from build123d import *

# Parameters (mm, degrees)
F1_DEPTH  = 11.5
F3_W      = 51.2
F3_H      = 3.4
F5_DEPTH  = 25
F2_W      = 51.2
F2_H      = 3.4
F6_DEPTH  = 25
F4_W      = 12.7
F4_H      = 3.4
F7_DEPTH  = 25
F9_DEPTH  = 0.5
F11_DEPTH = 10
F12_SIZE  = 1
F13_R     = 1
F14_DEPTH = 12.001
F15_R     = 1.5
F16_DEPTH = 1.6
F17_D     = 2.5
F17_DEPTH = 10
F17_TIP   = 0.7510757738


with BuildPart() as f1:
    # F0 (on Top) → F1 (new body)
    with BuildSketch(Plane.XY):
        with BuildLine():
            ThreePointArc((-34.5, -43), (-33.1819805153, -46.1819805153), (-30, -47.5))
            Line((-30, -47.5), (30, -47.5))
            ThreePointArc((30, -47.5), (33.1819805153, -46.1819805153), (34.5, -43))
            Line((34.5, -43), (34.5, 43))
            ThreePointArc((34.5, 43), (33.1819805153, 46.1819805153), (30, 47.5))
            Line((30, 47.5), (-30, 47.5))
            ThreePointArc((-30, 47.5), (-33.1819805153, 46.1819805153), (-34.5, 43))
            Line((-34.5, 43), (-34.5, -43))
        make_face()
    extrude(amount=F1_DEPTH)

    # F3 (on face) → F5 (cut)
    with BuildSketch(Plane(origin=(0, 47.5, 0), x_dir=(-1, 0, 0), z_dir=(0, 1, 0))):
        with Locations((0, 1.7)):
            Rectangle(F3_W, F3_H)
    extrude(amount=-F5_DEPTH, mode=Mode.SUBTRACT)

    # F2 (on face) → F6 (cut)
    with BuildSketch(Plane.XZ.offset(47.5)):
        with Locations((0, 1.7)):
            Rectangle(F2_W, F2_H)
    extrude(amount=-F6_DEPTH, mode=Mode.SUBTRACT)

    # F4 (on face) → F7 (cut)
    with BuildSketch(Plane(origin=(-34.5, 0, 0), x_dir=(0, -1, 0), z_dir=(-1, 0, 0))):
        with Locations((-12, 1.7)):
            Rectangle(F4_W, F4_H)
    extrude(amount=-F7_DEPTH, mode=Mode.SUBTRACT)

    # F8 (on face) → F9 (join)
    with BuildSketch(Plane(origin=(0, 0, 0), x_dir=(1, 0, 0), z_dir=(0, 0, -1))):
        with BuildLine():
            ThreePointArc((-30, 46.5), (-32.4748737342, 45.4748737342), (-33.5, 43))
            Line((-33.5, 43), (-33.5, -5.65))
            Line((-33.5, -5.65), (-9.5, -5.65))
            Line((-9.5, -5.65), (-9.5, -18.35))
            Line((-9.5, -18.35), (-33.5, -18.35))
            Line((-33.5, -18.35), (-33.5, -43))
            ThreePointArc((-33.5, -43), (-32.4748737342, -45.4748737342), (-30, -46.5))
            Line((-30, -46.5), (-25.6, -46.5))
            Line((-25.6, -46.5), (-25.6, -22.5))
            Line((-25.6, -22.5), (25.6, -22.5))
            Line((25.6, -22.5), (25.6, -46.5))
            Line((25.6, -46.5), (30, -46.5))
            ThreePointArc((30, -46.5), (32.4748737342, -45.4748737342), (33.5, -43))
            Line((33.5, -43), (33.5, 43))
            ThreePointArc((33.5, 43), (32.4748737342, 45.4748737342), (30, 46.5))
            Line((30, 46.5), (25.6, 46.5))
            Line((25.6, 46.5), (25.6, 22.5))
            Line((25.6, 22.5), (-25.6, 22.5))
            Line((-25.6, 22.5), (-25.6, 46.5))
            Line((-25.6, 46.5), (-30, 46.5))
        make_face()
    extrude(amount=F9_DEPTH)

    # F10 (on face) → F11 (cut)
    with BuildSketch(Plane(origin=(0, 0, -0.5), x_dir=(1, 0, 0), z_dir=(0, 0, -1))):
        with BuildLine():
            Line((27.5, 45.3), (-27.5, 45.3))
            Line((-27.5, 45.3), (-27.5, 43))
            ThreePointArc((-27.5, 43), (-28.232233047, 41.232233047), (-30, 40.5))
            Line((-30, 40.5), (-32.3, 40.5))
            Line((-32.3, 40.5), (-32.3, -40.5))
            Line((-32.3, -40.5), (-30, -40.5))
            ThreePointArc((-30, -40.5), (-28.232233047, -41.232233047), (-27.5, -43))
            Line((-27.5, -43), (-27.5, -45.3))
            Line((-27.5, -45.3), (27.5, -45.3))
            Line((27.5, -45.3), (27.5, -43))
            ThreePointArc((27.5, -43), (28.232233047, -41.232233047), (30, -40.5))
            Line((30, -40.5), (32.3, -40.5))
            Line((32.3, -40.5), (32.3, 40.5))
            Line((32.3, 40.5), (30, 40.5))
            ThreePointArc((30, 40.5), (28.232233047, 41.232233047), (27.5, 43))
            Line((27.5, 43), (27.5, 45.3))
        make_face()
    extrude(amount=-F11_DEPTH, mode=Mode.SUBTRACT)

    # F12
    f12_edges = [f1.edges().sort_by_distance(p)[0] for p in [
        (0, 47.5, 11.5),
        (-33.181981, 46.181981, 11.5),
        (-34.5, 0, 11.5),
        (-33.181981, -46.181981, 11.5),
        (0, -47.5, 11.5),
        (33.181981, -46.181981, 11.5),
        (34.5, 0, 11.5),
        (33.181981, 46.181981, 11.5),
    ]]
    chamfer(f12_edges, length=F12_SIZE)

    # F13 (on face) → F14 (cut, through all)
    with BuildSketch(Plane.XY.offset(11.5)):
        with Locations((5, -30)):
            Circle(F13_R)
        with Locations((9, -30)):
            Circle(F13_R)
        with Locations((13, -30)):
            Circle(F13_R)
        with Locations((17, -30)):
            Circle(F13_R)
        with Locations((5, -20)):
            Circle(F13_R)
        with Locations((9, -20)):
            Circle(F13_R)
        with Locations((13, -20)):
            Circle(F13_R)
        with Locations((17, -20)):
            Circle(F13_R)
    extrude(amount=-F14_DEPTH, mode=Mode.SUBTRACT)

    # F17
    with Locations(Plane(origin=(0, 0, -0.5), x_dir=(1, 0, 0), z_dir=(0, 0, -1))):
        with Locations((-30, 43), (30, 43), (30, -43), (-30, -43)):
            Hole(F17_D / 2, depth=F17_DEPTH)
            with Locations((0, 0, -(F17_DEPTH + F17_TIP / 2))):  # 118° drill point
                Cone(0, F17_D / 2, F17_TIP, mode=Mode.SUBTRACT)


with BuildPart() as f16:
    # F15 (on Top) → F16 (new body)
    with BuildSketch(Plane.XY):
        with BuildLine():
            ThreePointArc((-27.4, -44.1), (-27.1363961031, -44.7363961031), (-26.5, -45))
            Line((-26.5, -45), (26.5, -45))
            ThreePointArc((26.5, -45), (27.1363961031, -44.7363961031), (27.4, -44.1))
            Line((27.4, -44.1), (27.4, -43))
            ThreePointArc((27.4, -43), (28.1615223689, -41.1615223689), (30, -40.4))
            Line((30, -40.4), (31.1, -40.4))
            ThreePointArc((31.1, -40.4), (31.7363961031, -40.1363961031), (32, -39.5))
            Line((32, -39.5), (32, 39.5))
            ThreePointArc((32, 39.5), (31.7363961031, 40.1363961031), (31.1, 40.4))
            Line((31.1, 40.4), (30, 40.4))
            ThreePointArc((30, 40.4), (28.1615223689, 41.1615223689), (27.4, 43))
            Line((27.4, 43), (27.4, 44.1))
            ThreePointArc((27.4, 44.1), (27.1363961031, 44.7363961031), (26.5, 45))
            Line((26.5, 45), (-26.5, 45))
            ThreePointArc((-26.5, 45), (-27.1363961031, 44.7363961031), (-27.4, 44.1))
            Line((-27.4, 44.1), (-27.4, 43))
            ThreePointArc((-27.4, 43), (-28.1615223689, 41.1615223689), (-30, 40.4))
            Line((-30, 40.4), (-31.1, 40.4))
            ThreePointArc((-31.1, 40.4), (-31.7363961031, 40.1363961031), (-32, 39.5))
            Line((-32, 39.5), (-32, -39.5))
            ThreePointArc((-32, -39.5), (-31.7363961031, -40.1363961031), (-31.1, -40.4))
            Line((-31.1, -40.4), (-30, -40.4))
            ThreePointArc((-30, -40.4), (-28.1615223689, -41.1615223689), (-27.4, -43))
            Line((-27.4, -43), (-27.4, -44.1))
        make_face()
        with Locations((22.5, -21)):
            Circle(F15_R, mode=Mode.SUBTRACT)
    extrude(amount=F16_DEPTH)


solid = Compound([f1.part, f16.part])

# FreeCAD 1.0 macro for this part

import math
import FreeCAD as App
import Part
import Sketcher


def edges_at(feature, points):
    """Names of the edges that pass closest to the given points."""
    edges = feature.Shape.Edges
    near = lambda p: min(range(len(edges)), key=lambda i: edges[i].distToShape(Part.Vertex(*p))[0])
    return sorted({f"Edge{near(p) + 1}" for p in points})

doc = App.newDocument("Part")
body = doc.addObject("PartDesign::Body", "Body")

# Sketch on XY plane
sketch1 = doc.addObject("Sketcher::SketchObject", "Sketch")
body.addObject(sketch1)
sketch1.AttachmentSupport = (doc.XY_Plane, [""])
sketch1.MapMode = "FlatFace"
sketch1.addGeometry(Part.ArcOfCircle(Part.Circle(App.Vector(-30, -43, 0), App.Vector(0, 0, 1), 4.5), math.radians(180), math.radians(270)), False)
sketch1.addGeometry(Part.LineSegment(App.Vector(-30, -47.5, 0), App.Vector(30, -47.5, 0)), False)
sketch1.addGeometry(Part.ArcOfCircle(Part.Circle(App.Vector(30, -43, 0), App.Vector(0, 0, 1), 4.5), math.radians(-90), math.radians(0)), False)
sketch1.addGeometry(Part.LineSegment(App.Vector(34.5, -43, 0), App.Vector(34.5, 43, 0)), False)
sketch1.addGeometry(Part.ArcOfCircle(Part.Circle(App.Vector(30, 43, 0), App.Vector(0, 0, 1), 4.5), math.radians(0), math.radians(90)), False)
sketch1.addGeometry(Part.LineSegment(App.Vector(30, 47.5, 0), App.Vector(-30, 47.5, 0)), False)
sketch1.addGeometry(Part.ArcOfCircle(Part.Circle(App.Vector(-30, 43, 0), App.Vector(0, 0, 1), 4.5), math.radians(90), math.radians(180)), False)
sketch1.addGeometry(Part.LineSegment(App.Vector(-34.5, 43, 0), App.Vector(-34.5, -43, 0)), False)
sketch1.addConstraint(Sketcher.Constraint("Tangent", 0, 2, 1, 1))
sketch1.addConstraint(Sketcher.Constraint("Tangent", 1, 2, 2, 1))
sketch1.addConstraint(Sketcher.Constraint("Tangent", 2, 2, 3, 1))
sketch1.addConstraint(Sketcher.Constraint("Tangent", 3, 2, 4, 1))
sketch1.addConstraint(Sketcher.Constraint("Tangent", 4, 2, 5, 1))
sketch1.addConstraint(Sketcher.Constraint("Tangent", 5, 2, 6, 1))
sketch1.addConstraint(Sketcher.Constraint("Tangent", 6, 2, 7, 1))
sketch1.addConstraint(Sketcher.Constraint("Tangent", 7, 2, 0, 1))
sketch1.addConstraint(Sketcher.Constraint("Horizontal", 1))
sketch1.addConstraint(Sketcher.Constraint("Vertical", 3))
sketch1.addConstraint(Sketcher.Constraint("Horizontal", 5))
sketch1.addConstraint(Sketcher.Constraint("Vertical", 7))
sketch1.addConstraint(Sketcher.Constraint("Equal", 0, 2))
sketch1.addConstraint(Sketcher.Constraint("Equal", 2, 4))
sketch1.addConstraint(Sketcher.Constraint("Equal", 4, 6))
sketch1.addConstraint(Sketcher.Constraint("Symmetric", 0, 3, 4, 3, -1, 1))
sketch1.addConstraint(Sketcher.Constraint("Radius", 0, 4.5))
sketch1.addConstraint(Sketcher.Constraint("DistanceX", 1, 1, 1, 2, 60.0))
sketch1.addConstraint(Sketcher.Constraint("DistanceY", 3, 1, 3, 2, 86.0))
pad1 = doc.addObject("PartDesign::Pad", "Pad")
body.addObject(pad1)
pad1.Profile = sketch1
pad1.Length = 11.5

# Sketch on XZ plane
sketch2 = doc.addObject("Sketcher::SketchObject", "Sketch001")
body.addObject(sketch2)
sketch2.AttachmentSupport = (doc.XZ_Plane, [""])
sketch2.MapMode = "FlatFace"
sketch2.AttachmentOffset = App.Placement(App.Vector(0, 0, -47.5), App.Rotation())
sketch2.addGeometry(Part.LineSegment(App.Vector(25.6, 3.4, 0), App.Vector(25.6, 0, 0)), False)
sketch2.addGeometry(Part.LineSegment(App.Vector(25.6, 0, 0), App.Vector(-25.6, 0, 0)), False)
sketch2.addGeometry(Part.LineSegment(App.Vector(-25.6, 0, 0), App.Vector(-25.6, 3.4, 0)), False)
sketch2.addGeometry(Part.LineSegment(App.Vector(-25.6, 3.4, 0), App.Vector(25.6, 3.4, 0)), False)
sketch2.addConstraint(Sketcher.Constraint("Coincident", 0, 2, 1, 1))
sketch2.addConstraint(Sketcher.Constraint("Coincident", 1, 2, 2, 1))
sketch2.addConstraint(Sketcher.Constraint("Coincident", 2, 2, 3, 1))
sketch2.addConstraint(Sketcher.Constraint("Coincident", 3, 2, 0, 1))
sketch2.addConstraint(Sketcher.Constraint("Vertical", 0))
sketch2.addConstraint(Sketcher.Constraint("Horizontal", 1))
sketch2.addConstraint(Sketcher.Constraint("Vertical", 2))
sketch2.addConstraint(Sketcher.Constraint("Horizontal", 3))
sketch2.addConstraint(Sketcher.Constraint("Symmetric", 0, 2, 1, 2, -1, 1))
sketch2.addConstraint(Sketcher.Constraint("DistanceX", 1, 2, 1, 1, 51.2))
sketch2.addConstraint(Sketcher.Constraint("DistanceY", 0, 2, 0, 1, 3.4))
pocket1 = doc.addObject("PartDesign::Pocket", "Pocket")
body.addObject(pocket1)
pocket1.Profile = sketch2
pocket1.Length = 25
pocket1.Reversed = True

# Sketch on XZ plane
sketch3 = doc.addObject("Sketcher::SketchObject", "Sketch002")
body.addObject(sketch3)
sketch3.AttachmentSupport = (doc.XZ_Plane, [""])
sketch3.MapMode = "FlatFace"
sketch3.AttachmentOffset = App.Placement(App.Vector(0, 0, 47.5), App.Rotation())
sketch3.addGeometry(Part.LineSegment(App.Vector(-25.6, 3.4, 0), App.Vector(-25.6, 0, 0)), False)
sketch3.addGeometry(Part.LineSegment(App.Vector(-25.6, 0, 0), App.Vector(25.6, 0, 0)), False)
sketch3.addGeometry(Part.LineSegment(App.Vector(25.6, 0, 0), App.Vector(25.6, 3.4, 0)), False)
sketch3.addGeometry(Part.LineSegment(App.Vector(25.6, 3.4, 0), App.Vector(-25.6, 3.4, 0)), False)
sketch3.addConstraint(Sketcher.Constraint("Coincident", 0, 2, 1, 1))
sketch3.addConstraint(Sketcher.Constraint("Coincident", 1, 2, 2, 1))
sketch3.addConstraint(Sketcher.Constraint("Coincident", 2, 2, 3, 1))
sketch3.addConstraint(Sketcher.Constraint("Coincident", 3, 2, 0, 1))
sketch3.addConstraint(Sketcher.Constraint("Vertical", 0))
sketch3.addConstraint(Sketcher.Constraint("Horizontal", 1))
sketch3.addConstraint(Sketcher.Constraint("Vertical", 2))
sketch3.addConstraint(Sketcher.Constraint("Horizontal", 3))
sketch3.addConstraint(Sketcher.Constraint("Symmetric", 0, 2, 1, 2, -1, 1))
sketch3.addConstraint(Sketcher.Constraint("DistanceX", 1, 1, 1, 2, 51.2))
sketch3.addConstraint(Sketcher.Constraint("DistanceY", 0, 2, 0, 1, 3.4))
pocket2 = doc.addObject("PartDesign::Pocket", "Pocket001")
body.addObject(pocket2)
pocket2.Profile = sketch3
pocket2.Length = 25

# Sketch on YZ plane
sketch4 = doc.addObject("Sketcher::SketchObject", "Sketch003")
body.addObject(sketch4)
sketch4.AttachmentSupport = (doc.YZ_Plane, [""])
sketch4.MapMode = "FlatFace"
sketch4.AttachmentOffset = App.Placement(App.Vector(0, 0, -34.5), App.Rotation())
sketch4.addGeometry(Part.LineSegment(App.Vector(18.4, 3.4, 0), App.Vector(18.4, 0, 0)), False)
sketch4.addGeometry(Part.LineSegment(App.Vector(18.4, 0, 0), App.Vector(5.7, 0, 0)), False)
sketch4.addGeometry(Part.LineSegment(App.Vector(5.7, 0, 0), App.Vector(5.7, 3.4, 0)), False)
sketch4.addGeometry(Part.LineSegment(App.Vector(5.7, 3.4, 0), App.Vector(18.4, 3.4, 0)), False)
sketch4.addConstraint(Sketcher.Constraint("Coincident", 0, 2, 1, 1))
sketch4.addConstraint(Sketcher.Constraint("Coincident", 1, 2, 2, 1))
sketch4.addConstraint(Sketcher.Constraint("Coincident", 2, 2, 3, 1))
sketch4.addConstraint(Sketcher.Constraint("Coincident", 3, 2, 0, 1))
sketch4.addConstraint(Sketcher.Constraint("Vertical", 0))
sketch4.addConstraint(Sketcher.Constraint("Horizontal", 1))
sketch4.addConstraint(Sketcher.Constraint("Vertical", 2))
sketch4.addConstraint(Sketcher.Constraint("Horizontal", 3))
sketch4.addConstraint(Sketcher.Constraint("PointOnObject", 0, 2, -1))
sketch4.addConstraint(Sketcher.Constraint("DistanceX", 1, 2, 1, 1, 12.7))
sketch4.addConstraint(Sketcher.Constraint("DistanceY", 0, 2, 0, 1, 3.4))
sketch4.addConstraint(Sketcher.Constraint("DistanceX", -1, 1, 0, 2, 18.35))
pocket3 = doc.addObject("PartDesign::Pocket", "Pocket002")
body.addObject(pocket3)
pocket3.Profile = sketch4
pocket3.Length = 25
pocket3.Reversed = True

# Sketch on XY plane
sketch5 = doc.addObject("Sketcher::SketchObject", "Sketch004")
body.addObject(sketch5)
sketch5.AttachmentSupport = (doc.XY_Plane, [""])
sketch5.MapMode = "FlatFace"
sketch5.addGeometry(Part.ArcOfCircle(Part.Circle(App.Vector(-30, -43, 0), App.Vector(0, 0, 1), 3.5), math.radians(180), math.radians(270)), False)
sketch5.addGeometry(Part.LineSegment(App.Vector(-33.5, -43, 0), App.Vector(-33.5, 5.7, 0)), False)
sketch5.addGeometry(Part.LineSegment(App.Vector(-33.5, 5.7, 0), App.Vector(-9.5, 5.7, 0)), False)
sketch5.addGeometry(Part.LineSegment(App.Vector(-9.5, 5.7, 0), App.Vector(-9.5, 18.4, 0)), False)
sketch5.addGeometry(Part.LineSegment(App.Vector(-9.5, 18.4, 0), App.Vector(-33.5, 18.4, 0)), False)
sketch5.addGeometry(Part.LineSegment(App.Vector(-33.5, 18.4, 0), App.Vector(-33.5, 43, 0)), False)
sketch5.addGeometry(Part.ArcOfCircle(Part.Circle(App.Vector(-30, 43, 0), App.Vector(0, 0, 1), 3.5), math.radians(90), math.radians(180)), False)
sketch5.addGeometry(Part.LineSegment(App.Vector(-30, 46.5, 0), App.Vector(-25.6, 46.5, 0)), False)
sketch5.addGeometry(Part.LineSegment(App.Vector(-25.6, 46.5, 0), App.Vector(-25.6, 22.5, 0)), False)
sketch5.addGeometry(Part.LineSegment(App.Vector(-25.6, 22.5, 0), App.Vector(25.6, 22.5, 0)), False)
sketch5.addGeometry(Part.LineSegment(App.Vector(25.6, 22.5, 0), App.Vector(25.6, 46.5, 0)), False)
sketch5.addGeometry(Part.LineSegment(App.Vector(25.6, 46.5, 0), App.Vector(30, 46.5, 0)), False)
sketch5.addGeometry(Part.ArcOfCircle(Part.Circle(App.Vector(30, 43, 0), App.Vector(0, 0, 1), 3.5), math.radians(0), math.radians(90)), False)
sketch5.addGeometry(Part.LineSegment(App.Vector(33.5, 43, 0), App.Vector(33.5, -43, 0)), False)
sketch5.addGeometry(Part.ArcOfCircle(Part.Circle(App.Vector(30, -43, 0), App.Vector(0, 0, 1), 3.5), math.radians(-90), math.radians(0)), False)
sketch5.addGeometry(Part.LineSegment(App.Vector(30, -46.5, 0), App.Vector(25.6, -46.5, 0)), False)
sketch5.addGeometry(Part.LineSegment(App.Vector(25.6, -46.5, 0), App.Vector(25.6, -22.5, 0)), False)
sketch5.addGeometry(Part.LineSegment(App.Vector(25.6, -22.5, 0), App.Vector(-25.6, -22.5, 0)), False)
sketch5.addGeometry(Part.LineSegment(App.Vector(-25.6, -22.5, 0), App.Vector(-25.6, -46.5, 0)), False)
sketch5.addGeometry(Part.LineSegment(App.Vector(-25.6, -46.5, 0), App.Vector(-30, -46.5, 0)), False)
sketch5.addConstraint(Sketcher.Constraint("Tangent", 0, 1, 1, 1))
sketch5.addConstraint(Sketcher.Constraint("Coincident", 1, 2, 2, 1))
sketch5.addConstraint(Sketcher.Constraint("Coincident", 2, 2, 3, 1))
sketch5.addConstraint(Sketcher.Constraint("Coincident", 3, 2, 4, 1))
sketch5.addConstraint(Sketcher.Constraint("Coincident", 4, 2, 5, 1))
sketch5.addConstraint(Sketcher.Constraint("Tangent", 5, 2, 6, 2))
sketch5.addConstraint(Sketcher.Constraint("Tangent", 6, 1, 7, 1))
sketch5.addConstraint(Sketcher.Constraint("Coincident", 7, 2, 8, 1))
sketch5.addConstraint(Sketcher.Constraint("Coincident", 8, 2, 9, 1))
sketch5.addConstraint(Sketcher.Constraint("Coincident", 9, 2, 10, 1))
sketch5.addConstraint(Sketcher.Constraint("Coincident", 10, 2, 11, 1))
sketch5.addConstraint(Sketcher.Constraint("Tangent", 11, 2, 12, 2))
sketch5.addConstraint(Sketcher.Constraint("Tangent", 12, 1, 13, 1))
sketch5.addConstraint(Sketcher.Constraint("Tangent", 13, 2, 14, 2))
sketch5.addConstraint(Sketcher.Constraint("Tangent", 14, 1, 15, 1))
sketch5.addConstraint(Sketcher.Constraint("Coincident", 15, 2, 16, 1))
sketch5.addConstraint(Sketcher.Constraint("Coincident", 16, 2, 17, 1))
sketch5.addConstraint(Sketcher.Constraint("Coincident", 17, 2, 18, 1))
sketch5.addConstraint(Sketcher.Constraint("Coincident", 18, 2, 19, 1))
sketch5.addConstraint(Sketcher.Constraint("Tangent", 19, 2, 0, 2))
sketch5.addConstraint(Sketcher.Constraint("Vertical", 1))
sketch5.addConstraint(Sketcher.Constraint("Horizontal", 2))
sketch5.addConstraint(Sketcher.Constraint("Vertical", 3))
sketch5.addConstraint(Sketcher.Constraint("Horizontal", 4))
sketch5.addConstraint(Sketcher.Constraint("Vertical", 5))
sketch5.addConstraint(Sketcher.Constraint("Horizontal", 7))
sketch5.addConstraint(Sketcher.Constraint("Vertical", 8))
sketch5.addConstraint(Sketcher.Constraint("Horizontal", 9))
sketch5.addConstraint(Sketcher.Constraint("Vertical", 10))
sketch5.addConstraint(Sketcher.Constraint("Horizontal", 11))
sketch5.addConstraint(Sketcher.Constraint("Vertical", 13))
sketch5.addConstraint(Sketcher.Constraint("Horizontal", 15))
sketch5.addConstraint(Sketcher.Constraint("Vertical", 16))
sketch5.addConstraint(Sketcher.Constraint("Horizontal", 17))
sketch5.addConstraint(Sketcher.Constraint("Vertical", 18))
sketch5.addConstraint(Sketcher.Constraint("Horizontal", 19))
sketch5.addConstraint(Sketcher.Constraint("Equal", 0, 6))
sketch5.addConstraint(Sketcher.Constraint("Equal", 6, 12))
sketch5.addConstraint(Sketcher.Constraint("Equal", 12, 14))
sketch5.addConstraint(Sketcher.Constraint("Symmetric", 0, 3, 12, 3, -1, 1))
sketch5.addConstraint(Sketcher.Constraint("Symmetric", 6, 3, 14, 3, -1, 1))
sketch5.addConstraint(Sketcher.Constraint("Symmetric", 8, 2, 16, 2, -1, 1))
sketch5.addConstraint(Sketcher.Constraint("Symmetric", 7, 2, 10, 2, -2))
sketch5.addConstraint(Sketcher.Constraint("Vertical", 8, 2, 17, 2))
sketch5.addConstraint(Sketcher.Constraint("Equal", 4, 8))
sketch5.addConstraint(Sketcher.Constraint("Radius", 0, 3.5))
sketch5.addConstraint(Sketcher.Constraint("DistanceX", 2, 1, 2, 2, 24.0))
sketch5.addConstraint(Sketcher.Constraint("DistanceY", 13, 2, 13, 1, 86.0))
sketch5.addConstraint(Sketcher.Constraint("DistanceX", 7, 1, 7, 2, 4.4))
sketch5.addConstraint(Sketcher.Constraint("DistanceX", 9, 1, 9, 2, 51.2))
sketch5.addConstraint(Sketcher.Constraint("DistanceY", 3, 1, 3, 2, 12.7))
sketch5.addConstraint(Sketcher.Constraint("DistanceY", 1, 1, 1, 2, 48.65))
pad2 = doc.addObject("PartDesign::Pad", "Pad001")
body.addObject(pad2)
pad2.Profile = sketch5
pad2.Length = 0.5
pad2.Reversed = True

# Sketch on XY plane
sketch6 = doc.addObject("Sketcher::SketchObject", "Sketch005")
body.addObject(sketch6)
sketch6.AttachmentSupport = (doc.XY_Plane, [""])
sketch6.MapMode = "FlatFace"
sketch6.AttachmentOffset = App.Placement(App.Vector(0, 0, -0.5), App.Rotation())
sketch6.addGeometry(Part.LineSegment(App.Vector(27.5, -45.3, 0), App.Vector(-27.5, -45.3, 0)), False)
sketch6.addGeometry(Part.LineSegment(App.Vector(-27.5, -45.3, 0), App.Vector(-27.5, -43, 0)), False)
sketch6.addGeometry(Part.ArcOfCircle(Part.Circle(App.Vector(-30, -43, 0), App.Vector(0, 0, 1), 2.5), math.radians(0), math.radians(90)), False)
sketch6.addGeometry(Part.LineSegment(App.Vector(-30, -40.5, 0), App.Vector(-32.3, -40.5, 0)), False)
sketch6.addGeometry(Part.LineSegment(App.Vector(-32.3, -40.5, 0), App.Vector(-32.3, 40.5, 0)), False)
sketch6.addGeometry(Part.LineSegment(App.Vector(-32.3, 40.5, 0), App.Vector(-30, 40.5, 0)), False)
sketch6.addGeometry(Part.ArcOfCircle(Part.Circle(App.Vector(-30, 43, 0), App.Vector(0, 0, 1), 2.5), math.radians(-90), math.radians(0)), False)
sketch6.addGeometry(Part.LineSegment(App.Vector(-27.5, 43, 0), App.Vector(-27.5, 45.3, 0)), False)
sketch6.addGeometry(Part.LineSegment(App.Vector(-27.5, 45.3, 0), App.Vector(27.5, 45.3, 0)), False)
sketch6.addGeometry(Part.LineSegment(App.Vector(27.5, 45.3, 0), App.Vector(27.5, 43, 0)), False)
sketch6.addGeometry(Part.ArcOfCircle(Part.Circle(App.Vector(30, 43, 0), App.Vector(0, 0, 1), 2.5), math.radians(180), math.radians(270)), False)
sketch6.addGeometry(Part.LineSegment(App.Vector(30, 40.5, 0), App.Vector(32.3, 40.5, 0)), False)
sketch6.addGeometry(Part.LineSegment(App.Vector(32.3, 40.5, 0), App.Vector(32.3, -40.5, 0)), False)
sketch6.addGeometry(Part.LineSegment(App.Vector(32.3, -40.5, 0), App.Vector(30, -40.5, 0)), False)
sketch6.addGeometry(Part.ArcOfCircle(Part.Circle(App.Vector(30, -43, 0), App.Vector(0, 0, 1), 2.5), math.radians(90), math.radians(180)), False)
sketch6.addGeometry(Part.LineSegment(App.Vector(27.5, -43, 0), App.Vector(27.5, -45.3, 0)), False)
sketch6.addConstraint(Sketcher.Constraint("Coincident", 0, 2, 1, 1))
sketch6.addConstraint(Sketcher.Constraint("Tangent", 1, 2, 2, 1))
sketch6.addConstraint(Sketcher.Constraint("Tangent", 2, 2, 3, 1))
sketch6.addConstraint(Sketcher.Constraint("Coincident", 3, 2, 4, 1))
sketch6.addConstraint(Sketcher.Constraint("Coincident", 4, 2, 5, 1))
sketch6.addConstraint(Sketcher.Constraint("Tangent", 5, 2, 6, 1))
sketch6.addConstraint(Sketcher.Constraint("Tangent", 6, 2, 7, 1))
sketch6.addConstraint(Sketcher.Constraint("Coincident", 7, 2, 8, 1))
sketch6.addConstraint(Sketcher.Constraint("Coincident", 8, 2, 9, 1))
sketch6.addConstraint(Sketcher.Constraint("Tangent", 9, 2, 10, 1))
sketch6.addConstraint(Sketcher.Constraint("Tangent", 10, 2, 11, 1))
sketch6.addConstraint(Sketcher.Constraint("Coincident", 11, 2, 12, 1))
sketch6.addConstraint(Sketcher.Constraint("Coincident", 12, 2, 13, 1))
sketch6.addConstraint(Sketcher.Constraint("Tangent", 13, 2, 14, 1))
sketch6.addConstraint(Sketcher.Constraint("Tangent", 14, 2, 15, 1))
sketch6.addConstraint(Sketcher.Constraint("Coincident", 15, 2, 0, 1))
sketch6.addConstraint(Sketcher.Constraint("Horizontal", 0))
sketch6.addConstraint(Sketcher.Constraint("Vertical", 1))
sketch6.addConstraint(Sketcher.Constraint("Horizontal", 3))
sketch6.addConstraint(Sketcher.Constraint("Vertical", 4))
sketch6.addConstraint(Sketcher.Constraint("Horizontal", 5))
sketch6.addConstraint(Sketcher.Constraint("Vertical", 7))
sketch6.addConstraint(Sketcher.Constraint("Horizontal", 8))
sketch6.addConstraint(Sketcher.Constraint("Vertical", 9))
sketch6.addConstraint(Sketcher.Constraint("Horizontal", 11))
sketch6.addConstraint(Sketcher.Constraint("Vertical", 12))
sketch6.addConstraint(Sketcher.Constraint("Horizontal", 13))
sketch6.addConstraint(Sketcher.Constraint("Vertical", 15))
sketch6.addConstraint(Sketcher.Constraint("Equal", 2, 6))
sketch6.addConstraint(Sketcher.Constraint("Equal", 6, 10))
sketch6.addConstraint(Sketcher.Constraint("Equal", 10, 14))
sketch6.addConstraint(Sketcher.Constraint("Symmetric", 2, 3, 10, 3, -1, 1))
sketch6.addConstraint(Sketcher.Constraint("Symmetric", 6, 3, 14, 3, -1, 1))
sketch6.addConstraint(Sketcher.Constraint("Symmetric", 6, 3, 10, 3, -2))
sketch6.addConstraint(Sketcher.Constraint("Equal", 5, 11))
sketch6.addConstraint(Sketcher.Constraint("Equal", 13, 1))
sketch6.addConstraint(Sketcher.Constraint("Equal", 1, 7))
sketch6.addConstraint(Sketcher.Constraint("Radius", 2, 2.5))
sketch6.addConstraint(Sketcher.Constraint("DistanceX", 0, 2, 0, 1, 55.0))
sketch6.addConstraint(Sketcher.Constraint("DistanceY", 4, 1, 4, 2, 81.0))
sketch6.addConstraint(Sketcher.Constraint("DistanceX", 3, 2, 3, 1, 2.3))
pocket4 = doc.addObject("PartDesign::Pocket", "Pocket003")
body.addObject(pocket4)
pocket4.Profile = sketch6
pocket4.Length = 10
pocket4.Reversed = True
doc.recompute()

chamfer = doc.addObject("PartDesign::Chamfer", "Chamfer")
body.addObject(chamfer)
chamfer.Base = (pocket4, edges_at(pocket4, [
    (0, 47.5, 11.5),
    (-33.182, 46.182, 11.5),
    (-34.5, 0, 11.5),
    (-33.182, -46.182, 11.5),
    (0, -47.5, 11.5),
    (33.182, -46.182, 11.5),
    (34.5, 0, 11.5),
    (33.182, 46.182, 11.5),
]))
chamfer.Size = 1

# Sketch on XY plane
sketch7 = doc.addObject("Sketcher::SketchObject", "Sketch006")
body.addObject(sketch7)
sketch7.AttachmentSupport = (doc.XY_Plane, [""])
sketch7.MapMode = "FlatFace"
sketch7.AttachmentOffset = App.Placement(App.Vector(0, 0, 11.5), App.Rotation())
sketch7.addGeometry(Part.Circle(App.Vector(5, -30, 0), App.Vector(0, 0, 1), 1), False)
sketch7.addGeometry(Part.Circle(App.Vector(9, -30, 0), App.Vector(0, 0, 1), 1), False)
sketch7.addGeometry(Part.Circle(App.Vector(13, -30, 0), App.Vector(0, 0, 1), 1), False)
sketch7.addGeometry(Part.Circle(App.Vector(17, -30, 0), App.Vector(0, 0, 1), 1), False)
sketch7.addGeometry(Part.Circle(App.Vector(5, -20, 0), App.Vector(0, 0, 1), 1), False)
sketch7.addGeometry(Part.Circle(App.Vector(9, -20, 0), App.Vector(0, 0, 1), 1), False)
sketch7.addGeometry(Part.Circle(App.Vector(13, -20, 0), App.Vector(0, 0, 1), 1), False)
sketch7.addGeometry(Part.Circle(App.Vector(17, -20, 0), App.Vector(0, 0, 1), 1), False)
sketch7.addConstraint(Sketcher.Constraint("Equal", 0, 1))
sketch7.addConstraint(Sketcher.Constraint("Equal", 1, 2))
sketch7.addConstraint(Sketcher.Constraint("Equal", 2, 3))
sketch7.addConstraint(Sketcher.Constraint("Equal", 3, 4))
sketch7.addConstraint(Sketcher.Constraint("Equal", 4, 5))
sketch7.addConstraint(Sketcher.Constraint("Equal", 5, 6))
sketch7.addConstraint(Sketcher.Constraint("Equal", 6, 7))
sketch7.addConstraint(Sketcher.Constraint("Horizontal", 0, 3, 1, 3))
sketch7.addConstraint(Sketcher.Constraint("Horizontal", 1, 3, 2, 3))
sketch7.addConstraint(Sketcher.Constraint("Horizontal", 2, 3, 3, 3))
sketch7.addConstraint(Sketcher.Constraint("Horizontal", 4, 3, 5, 3))
sketch7.addConstraint(Sketcher.Constraint("Horizontal", 5, 3, 6, 3))
sketch7.addConstraint(Sketcher.Constraint("Horizontal", 6, 3, 7, 3))
sketch7.addConstraint(Sketcher.Constraint("Vertical", 0, 3, 4, 3))
sketch7.addConstraint(Sketcher.Constraint("Vertical", 1, 3, 5, 3))
sketch7.addConstraint(Sketcher.Constraint("Vertical", 2, 3, 6, 3))
sketch7.addConstraint(Sketcher.Constraint("Vertical", 3, 3, 7, 3))
sketch7.addConstraint(Sketcher.Constraint("Diameter", 0, 2.0))
sketch7.addConstraint(Sketcher.Constraint("DistanceX", -1, 1, 0, 3, 5.0))
sketch7.addConstraint(Sketcher.Constraint("DistanceY", 0, 3, -1, 1, 30.0))
sketch7.addConstraint(Sketcher.Constraint("DistanceX", -1, 1, 1, 3, 9.0))
sketch7.addConstraint(Sketcher.Constraint("DistanceX", -1, 1, 2, 3, 13.0))
sketch7.addConstraint(Sketcher.Constraint("DistanceX", -1, 1, 3, 3, 17.0))
sketch7.addConstraint(Sketcher.Constraint("DistanceY", 4, 3, -1, 1, 20.0))
pocket5 = doc.addObject("PartDesign::Pocket", "Pocket004")
body.addObject(pocket5)
pocket5.Profile = sketch7
pocket5.Type = "ThroughAll"

# Sketch on XY plane
sketch8 = doc.addObject("Sketcher::SketchObject", "Sketch007")
body.addObject(sketch8)
sketch8.AttachmentSupport = (doc.XY_Plane, [""])
sketch8.MapMode = "FlatFace"
sketch8.AttachmentOffset = App.Placement(App.Vector(0, 0, -0.5), App.Rotation())
sketch8.addGeometry(Part.Circle(App.Vector(-30, -43, 0), App.Vector(0, 0, 1), 1.2), False)
sketch8.addGeometry(Part.Circle(App.Vector(30, -43, 0), App.Vector(0, 0, 1), 1.2), False)
sketch8.addGeometry(Part.Circle(App.Vector(30, 43, 0), App.Vector(0, 0, 1), 1.2), False)
sketch8.addGeometry(Part.Circle(App.Vector(-30, 43, 0), App.Vector(0, 0, 1), 1.2), False)
sketch8.addConstraint(Sketcher.Constraint("Equal", 0, 1))
sketch8.addConstraint(Sketcher.Constraint("Equal", 1, 2))
sketch8.addConstraint(Sketcher.Constraint("Equal", 2, 3))
sketch8.addConstraint(Sketcher.Constraint("Symmetric", 0, 3, 2, 3, -1, 1))
sketch8.addConstraint(Sketcher.Constraint("Symmetric", 1, 3, 3, 3, -1, 1))
sketch8.addConstraint(Sketcher.Constraint("Symmetric", 0, 3, 1, 3, -2))
sketch8.addConstraint(Sketcher.Constraint("Diameter", 0, 2.5))
sketch8.addConstraint(Sketcher.Constraint("DistanceX", 0, 3, -1, 1, 30.0))
sketch8.addConstraint(Sketcher.Constraint("DistanceY", 0, 3, -1, 1, 43.0))
doc.recompute()
hole = doc.addObject("PartDesign::Hole", "Hole")
body.addObject(hole)
hole.Profile = sketch8
hole.ThreadType = "None"
hole.Diameter = 2.5
hole.DepthType = "Dimension"
hole.Depth = 10
hole.DrillPoint = "Angled"
hole.DrillPointAngle = 118
hole.Reversed = True
body2 = doc.addObject("PartDesign::Body", "Body001")

# Sketch on XY plane
sketch9 = doc.addObject("Sketcher::SketchObject", "Sketch008")
body2.addObject(sketch9)
sketch9.AttachmentSupport = (doc.getObject("XY_Plane001"), [""])
sketch9.MapMode = "FlatFace"
sketch9.addGeometry(Part.ArcOfCircle(Part.Circle(App.Vector(-26.5, -44.1, 0), App.Vector(0, 0, 1), 0.9), math.radians(180), math.radians(270)), False)
sketch9.addGeometry(Part.LineSegment(App.Vector(-26.5, -45, 0), App.Vector(26.5, -45, 0)), False)
sketch9.addGeometry(Part.ArcOfCircle(Part.Circle(App.Vector(26.5, -44.1, 0), App.Vector(0, 0, 1), 0.9), math.radians(-90), math.radians(0)), False)
sketch9.addGeometry(Part.LineSegment(App.Vector(27.4, -44.1, 0), App.Vector(27.4, -43, 0)), False)
sketch9.addGeometry(Part.ArcOfCircle(Part.Circle(App.Vector(30, -43, 0), App.Vector(0, 0, 1), 2.6), math.radians(90), math.radians(180)), False)
sketch9.addGeometry(Part.LineSegment(App.Vector(30, -40.4, 0), App.Vector(31.1, -40.4, 0)), False)
sketch9.addGeometry(Part.ArcOfCircle(Part.Circle(App.Vector(31.1, -39.5, 0), App.Vector(0, 0, 1), 0.9), math.radians(-90), math.radians(0)), False)
sketch9.addGeometry(Part.LineSegment(App.Vector(32, -39.5, 0), App.Vector(32, 39.5, 0)), False)
sketch9.addGeometry(Part.ArcOfCircle(Part.Circle(App.Vector(31.1, 39.5, 0), App.Vector(0, 0, 1), 0.9), math.radians(0), math.radians(90)), False)
sketch9.addGeometry(Part.LineSegment(App.Vector(31.1, 40.4, 0), App.Vector(30, 40.4, 0)), False)
sketch9.addGeometry(Part.ArcOfCircle(Part.Circle(App.Vector(30, 43, 0), App.Vector(0, 0, 1), 2.6), math.radians(180), math.radians(270)), False)
sketch9.addGeometry(Part.LineSegment(App.Vector(27.4, 43, 0), App.Vector(27.4, 44.1, 0)), False)
sketch9.addGeometry(Part.ArcOfCircle(Part.Circle(App.Vector(26.5, 44.1, 0), App.Vector(0, 0, 1), 0.9), math.radians(0), math.radians(90)), False)
sketch9.addGeometry(Part.LineSegment(App.Vector(26.5, 45, 0), App.Vector(-26.5, 45, 0)), False)
sketch9.addGeometry(Part.ArcOfCircle(Part.Circle(App.Vector(-26.5, 44.1, 0), App.Vector(0, 0, 1), 0.9), math.radians(90), math.radians(180)), False)
sketch9.addGeometry(Part.LineSegment(App.Vector(-27.4, 44.1, 0), App.Vector(-27.4, 43, 0)), False)
sketch9.addGeometry(Part.ArcOfCircle(Part.Circle(App.Vector(-30, 43, 0), App.Vector(0, 0, 1), 2.6), math.radians(-90), math.radians(0)), False)
sketch9.addGeometry(Part.LineSegment(App.Vector(-30, 40.4, 0), App.Vector(-31.1, 40.4, 0)), False)
sketch9.addGeometry(Part.ArcOfCircle(Part.Circle(App.Vector(-31.1, 39.5, 0), App.Vector(0, 0, 1), 0.9), math.radians(90), math.radians(180)), False)
sketch9.addGeometry(Part.LineSegment(App.Vector(-32, 39.5, 0), App.Vector(-32, -39.5, 0)), False)
sketch9.addGeometry(Part.ArcOfCircle(Part.Circle(App.Vector(-31.1, -39.5, 0), App.Vector(0, 0, 1), 0.9), math.radians(180), math.radians(270)), False)
sketch9.addGeometry(Part.LineSegment(App.Vector(-31.1, -40.4, 0), App.Vector(-30, -40.4, 0)), False)
sketch9.addGeometry(Part.ArcOfCircle(Part.Circle(App.Vector(-30, -43, 0), App.Vector(0, 0, 1), 2.6), math.radians(0), math.radians(90)), False)
sketch9.addGeometry(Part.LineSegment(App.Vector(-27.4, -43, 0), App.Vector(-27.4, -44.1, 0)), False)
sketch9.addGeometry(Part.Circle(App.Vector(22.5, -21, 0), App.Vector(0, 0, 1), 1.5), False)
sketch9.addConstraint(Sketcher.Constraint("Tangent", 0, 2, 1, 1))
sketch9.addConstraint(Sketcher.Constraint("Tangent", 1, 2, 2, 1))
sketch9.addConstraint(Sketcher.Constraint("Tangent", 2, 2, 3, 1))
sketch9.addConstraint(Sketcher.Constraint("Tangent", 3, 2, 4, 2))
sketch9.addConstraint(Sketcher.Constraint("Tangent", 4, 1, 5, 1))
sketch9.addConstraint(Sketcher.Constraint("Tangent", 5, 2, 6, 1))
sketch9.addConstraint(Sketcher.Constraint("Tangent", 6, 2, 7, 1))
sketch9.addConstraint(Sketcher.Constraint("Tangent", 7, 2, 8, 1))
sketch9.addConstraint(Sketcher.Constraint("Tangent", 8, 2, 9, 1))
sketch9.addConstraint(Sketcher.Constraint("Tangent", 9, 2, 10, 2))
sketch9.addConstraint(Sketcher.Constraint("Tangent", 10, 1, 11, 1))
sketch9.addConstraint(Sketcher.Constraint("Tangent", 11, 2, 12, 1))
sketch9.addConstraint(Sketcher.Constraint("Tangent", 12, 2, 13, 1))
sketch9.addConstraint(Sketcher.Constraint("Tangent", 13, 2, 14, 1))
sketch9.addConstraint(Sketcher.Constraint("Tangent", 14, 2, 15, 1))
sketch9.addConstraint(Sketcher.Constraint("Tangent", 15, 2, 16, 2))
sketch9.addConstraint(Sketcher.Constraint("Tangent", 16, 1, 17, 1))
sketch9.addConstraint(Sketcher.Constraint("Tangent", 17, 2, 18, 1))
sketch9.addConstraint(Sketcher.Constraint("Tangent", 18, 2, 19, 1))
sketch9.addConstraint(Sketcher.Constraint("Tangent", 19, 2, 20, 1))
sketch9.addConstraint(Sketcher.Constraint("Tangent", 20, 2, 21, 1))
sketch9.addConstraint(Sketcher.Constraint("Tangent", 21, 2, 22, 2))
sketch9.addConstraint(Sketcher.Constraint("Tangent", 22, 1, 23, 1))
sketch9.addConstraint(Sketcher.Constraint("Tangent", 23, 2, 0, 1))
sketch9.addConstraint(Sketcher.Constraint("Horizontal", 1))
sketch9.addConstraint(Sketcher.Constraint("Vertical", 3))
sketch9.addConstraint(Sketcher.Constraint("Horizontal", 5))
sketch9.addConstraint(Sketcher.Constraint("Vertical", 7))
sketch9.addConstraint(Sketcher.Constraint("Horizontal", 9))
sketch9.addConstraint(Sketcher.Constraint("Vertical", 11))
sketch9.addConstraint(Sketcher.Constraint("Horizontal", 13))
sketch9.addConstraint(Sketcher.Constraint("Vertical", 15))
sketch9.addConstraint(Sketcher.Constraint("Horizontal", 17))
sketch9.addConstraint(Sketcher.Constraint("Vertical", 19))
sketch9.addConstraint(Sketcher.Constraint("Horizontal", 21))
sketch9.addConstraint(Sketcher.Constraint("Vertical", 23))
sketch9.addConstraint(Sketcher.Constraint("Equal", 0, 2))
sketch9.addConstraint(Sketcher.Constraint("Equal", 2, 6))
sketch9.addConstraint(Sketcher.Constraint("Equal", 6, 8))
sketch9.addConstraint(Sketcher.Constraint("Equal", 4, 10))
sketch9.addConstraint(Sketcher.Constraint("Equal", 8, 12))
sketch9.addConstraint(Sketcher.Constraint("Equal", 12, 14))
sketch9.addConstraint(Sketcher.Constraint("Equal", 10, 16))
sketch9.addConstraint(Sketcher.Constraint("Equal", 14, 18))
sketch9.addConstraint(Sketcher.Constraint("Equal", 18, 20))
sketch9.addConstraint(Sketcher.Constraint("Equal", 16, 22))
sketch9.addConstraint(Sketcher.Constraint("Symmetric", 0, 3, 12, 3, -1, 1))
sketch9.addConstraint(Sketcher.Constraint("Symmetric", 4, 3, 16, 3, -1, 1))
sketch9.addConstraint(Sketcher.Constraint("Symmetric", 8, 3, 20, 3, -1, 1))
sketch9.addConstraint(Sketcher.Constraint("Symmetric", 10, 3, 16, 3, -2))
sketch9.addConstraint(Sketcher.Constraint("Equal", 21, 3))
sketch9.addConstraint(Sketcher.Constraint("Diameter", 24, 3.0))
sketch9.addConstraint(Sketcher.Constraint("Radius", 0, 0.9))
sketch9.addConstraint(Sketcher.Constraint("Radius", 4, 2.6))
sketch9.addConstraint(Sketcher.Constraint("DistanceX", 1, 1, 1, 2, 53.0))
sketch9.addConstraint(Sketcher.Constraint("DistanceY", 7, 1, 7, 2, 79.0))
sketch9.addConstraint(Sketcher.Constraint("DistanceX", 5, 1, 5, 2, 1.1))
sketch9.addConstraint(Sketcher.Constraint("DistanceY", 24, 3, -1, 1, 21.0))
sketch9.addConstraint(Sketcher.Constraint("DistanceX", 24, 3, 2, 3, 4.0))
pad3 = doc.addObject("PartDesign::Pad", "Pad002")
body2.addObject(pad3)
pad3.Profile = sketch9
pad3.Length = 1.6

doc.recompute()
